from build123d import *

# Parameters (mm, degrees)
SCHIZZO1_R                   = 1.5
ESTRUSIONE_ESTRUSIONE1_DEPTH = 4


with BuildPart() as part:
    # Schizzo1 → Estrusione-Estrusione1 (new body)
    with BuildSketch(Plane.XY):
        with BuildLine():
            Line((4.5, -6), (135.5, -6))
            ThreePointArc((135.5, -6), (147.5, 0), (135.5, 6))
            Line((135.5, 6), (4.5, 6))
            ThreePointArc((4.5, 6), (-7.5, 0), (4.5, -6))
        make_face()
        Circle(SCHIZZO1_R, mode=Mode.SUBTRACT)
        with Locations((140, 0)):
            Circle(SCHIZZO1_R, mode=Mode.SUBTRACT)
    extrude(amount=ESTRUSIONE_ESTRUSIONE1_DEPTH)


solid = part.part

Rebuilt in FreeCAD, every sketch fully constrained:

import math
import FreeCAD as App
import Part
import Sketcher

V = App.Vector

doc = App.newDocument("Part")
params = doc.addObject("Spreadsheet::Sheet", "Params")
for row, (alias, value) in enumerate([
    ("sketch1_diameter", "3 mm"),
    ("sketch1_radius", "7.5 mm"),
    ("sketch1_width", "131 mm"),
    ("pad1_length", "4 mm"),
], start=1):
    params.set(f"A{row}", alias)
    params.set(f"B{row}", "=" + value)
    params.setAlias(f"B{row}", alias)

body = doc.addObject("PartDesign::Body", "Body")

sketch1 = body.newObject("Sketcher::SketchObject", "Sketch")
sketch1.AttachmentSupport = (doc.getObject("XY_Plane"), [""])
sketch1.MapMode = "FlatFace"
sketch1.addGeometry([
    Part.LineSegment(V(4.5, -6, 0), V(135.5, -6, 0)),
    Part.ArcOfCircle(Part.Circle(V(140, 0, 0), V(0, 0, 1), 7.5), math.radians(-126.869898), math.radians(126.869898)),
    Part.LineSegment(V(135.5, 6, 0), V(4.5, 6, 0)),
    Part.ArcOfCircle(Part.Circle(V(0, 0, 0), V(0, 0, 1), 7.5), math.radians(53.130102), math.radians(306.869898)),
    Part.Circle(V(0, 0, 0), V(0, 0, 1), 1.5),
    Part.Circle(V(140, 0, 0), V(0, 0, 1), 1.5),
], False)
sketch1.addConstraint([
    Sketcher.Constraint("Coincident", 0, 2, 1, 1),
    Sketcher.Constraint("Coincident", 1, 2, 2, 1),
    Sketcher.Constraint("Coincident", 2, 2, 3, 1),
    Sketcher.Constraint("Coincident", 3, 2, 0, 1),
    Sketcher.Constraint("Horizontal", 0),
    Sketcher.Constraint("Horizontal", 2),
    Sketcher.Constraint("Coincident", 3, 3, -1, 1),
    Sketcher.Constraint("Coincident", 4, 3, -1, 1),
    Sketcher.Constraint("Coincident", 5, 3, 1, 3),
    Sketcher.Constraint("Equal", 1, 3),
    Sketcher.Constraint("Equal", 4, 5),
    Sketcher.Constraint("Symmetric", 0, 2, 1, 2, -1),
    Sketcher.Constraint("Diameter", 4, 3.0),
    Sketcher.Constraint("Radius", 1, 7.5),
    Sketcher.Constraint("DistanceX", 0, 1, 0, 2, 131.0),
    Sketcher.Constraint("DistanceX", -1, 1, 1, 3, 140.0),
])
sketch1.setExpression("Constraints[12]", "Params.sketch1_diameter")
sketch1.setExpression("Constraints[13]", "Params.sketch1_radius")
sketch1.setExpression("Constraints[14]", "Params.sketch1_width")
pad1 = body.newObject("PartDesign::Pad", "Pad")
pad1.Profile = sketch1
pad1.setExpression("Length", "Params.pad1_length")

doc.recompute()
